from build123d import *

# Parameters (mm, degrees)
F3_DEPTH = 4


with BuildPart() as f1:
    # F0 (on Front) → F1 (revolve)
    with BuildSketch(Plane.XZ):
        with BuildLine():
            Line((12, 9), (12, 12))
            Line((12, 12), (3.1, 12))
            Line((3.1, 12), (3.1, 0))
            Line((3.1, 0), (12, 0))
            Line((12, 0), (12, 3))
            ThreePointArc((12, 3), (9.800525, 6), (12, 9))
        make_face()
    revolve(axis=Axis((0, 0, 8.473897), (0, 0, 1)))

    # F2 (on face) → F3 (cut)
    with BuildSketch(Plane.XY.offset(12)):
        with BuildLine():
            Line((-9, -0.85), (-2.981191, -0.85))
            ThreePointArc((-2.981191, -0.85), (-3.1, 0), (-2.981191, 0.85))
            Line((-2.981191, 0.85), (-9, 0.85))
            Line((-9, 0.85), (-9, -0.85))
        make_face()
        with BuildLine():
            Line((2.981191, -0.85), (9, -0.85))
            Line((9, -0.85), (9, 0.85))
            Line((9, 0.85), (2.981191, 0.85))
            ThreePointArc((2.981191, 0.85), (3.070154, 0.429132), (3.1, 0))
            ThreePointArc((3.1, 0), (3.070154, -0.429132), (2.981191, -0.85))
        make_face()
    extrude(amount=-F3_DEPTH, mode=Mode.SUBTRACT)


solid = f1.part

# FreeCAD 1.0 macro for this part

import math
import FreeCAD as App
import Part
import Sketcher
from FreeCAD import Vector

doc = App.newDocument("Part")
body = doc.addObject("PartDesign::Body", "Body")

# Sketch on XZ plane
sketch1 = body.newObject("Sketcher::SketchObject", "Sketch")
sketch1.AttachmentSupport = (doc.getObject("XZ_Plane"), [""])
sketch1.MapMode = "FlatFace"
sketch1.addGeometry([
    Part.LineSegment(Vector(12, 9, 0), Vector(12, 12, 0)),  # 0
    Part.LineSegment(Vector(12, 12, 0), Vector(3.1, 12, 0)),  # 1
    Part.LineSegment(Vector(3.1, 12, 0), Vector(3.1, 0, 0)),  # 2
    Part.LineSegment(Vector(3.1, 0, 0), Vector(12, 0, 0)),  # 3
    Part.LineSegment(Vector(12, 0, 0), Vector(12, 3, 0)),  # 4
    Part.ArcOfCircle(Part.Circle(Vector(12.946205, 6, 0), Vector(0, 0, 1), 3.14568), math.radians(107.505366), math.radians(252.494634)),  # 5
], False)
sketch1.addConstraint([
    Sketcher.Constraint("Coincident", 0, 2, 1, 1),
    Sketcher.Constraint("Coincident", 1, 2, 2, 1),
    Sketcher.Constraint("Coincident", 2, 2, 3, 1),
    Sketcher.Constraint("Coincident", 3, 2, 4, 1),
    Sketcher.Constraint("Coincident", 4, 2, 5, 2),
    Sketcher.Constraint("Coincident", 5, 1, 0, 1),
    Sketcher.Constraint("Vertical", 0),
    Sketcher.Constraint("Horizontal", 1),
    Sketcher.Constraint("Vertical", 2),
    Sketcher.Constraint("Horizontal", 3),
    Sketcher.Constraint("Vertical", 4),
    Sketcher.Constraint("PointOnObject", 2, 2, -1),
    Sketcher.Constraint("Vertical", 0, 2, 3, 2),
    Sketcher.Constraint("Equal", 0, 4),
    Sketcher.Constraint("DistanceY", 0, 1, 0, 2, 3.0),
    Sketcher.Constraint("DistanceY", 2, 2, 2, 1, 12.0),
    Sketcher.Constraint("DistanceX", 1, 2, 1, 1, 8.9),
    Sketcher.Constraint("DistanceX", -1, 1, 0, 2, 12.0),
    Sketcher.Constraint("Radius", 5, 3.14568),
])
revolution = body.newObject("PartDesign::Revolution", "Revolution")
revolution.Profile = sketch1
revolution.ReferenceAxis = (sketch1, ["V_Axis"])
revolution.Angle = 360

# Sketch on XY plane
sketch2 = body.newObject("Sketcher::SketchObject", "Sketch001")
sketch2.AttachmentSupport = (doc.getObject("XY_Plane"), [""])
sketch2.MapMode = "FlatFace"
sketch2.AttachmentOffset = App.Placement(Vector(0, 0, 12), App.Rotation())
sketch2.addGeometry([
    Part.LineSegment(Vector(-9, -0.85, 0), Vector(-2.981191, -0.85, 0)),  # 0
    Part.ArcOfCircle(Part.Circle(Vector(-0.000001, 0, 0), Vector(0, 0, 1), 3.099999), math.radians(164.086034), math.radians(195.913966)),  # 1
    Part.LineSegment(Vector(-2.981191, 0.85, 0), Vector(-9, 0.85, 0)),  # 2
    Part.LineSegment(Vector(-9, 0.85, 0), Vector(-9, -0.85, 0)),  # 3
    Part.LineSegment(Vector(2.981191, -0.85, 0), Vector(9, -0.85, 0)),  # 4
    Part.LineSegment(Vector(9, -0.85, 0), Vector(9, 0.85, 0)),  # 5
    Part.LineSegment(Vector(9, 0.85, 0), Vector(2.981191, 0.85, 0)),  # 6
    Part.ArcOfCircle(Part.Circle(Vector(-0.000001, 0, 0), Vector(0, 0, 1), 3.100001), math.radians(0.000004), math.radians(15.913962)),  # 7
    Part.ArcOfCircle(Part.Circle(Vector(-0.000001, 0, 0), Vector(0, 0, 1), 3.100001), math.radians(-15.913962), math.radians(-0.000004)),  # 8
], False)
sketch2.addConstraint([
    Sketcher.Constraint("Coincident", 0, 2, 1, 2),
    Sketcher.Constraint("Coincident", 1, 1, 2, 1),
    Sketcher.Constraint("Coincident", 2, 2, 3, 1),
    Sketcher.Constraint("Coincident", 3, 2, 0, 1),
    Sketcher.Constraint("Coincident", 4, 2, 5, 1),
    Sketcher.Constraint("Coincident", 5, 2, 6, 1),
    Sketcher.Constraint("Coincident", 6, 2, 7, 2),
    Sketcher.Constraint("Tangent", 7, 1, 8, 2),
    Sketcher.Constraint("Coincident", 8, 1, 4, 1),
    Sketcher.Constraint("Horizontal", 0),
    Sketcher.Constraint("Horizontal", 2),
    Sketcher.Constraint("Vertical", 3),
    Sketcher.Constraint("Horizontal", 4),
    Sketcher.Constraint("Vertical", 5),
    Sketcher.Constraint("Horizontal", 6),
    Sketcher.Constraint("Coincident", 1, 3, -1, 1),
    Sketcher.Constraint("Coincident", 7, 3, -1, 1),
    Sketcher.Constraint("Equal", 1, 7),
    Sketcher.Constraint("Equal", 7, 8),
    Sketcher.Constraint("Symmetric", 2, 2, 4, 2, -1, 1),
    Sketcher.Constraint("PointOnObject", 7, 1, -1),
    Sketcher.Constraint("Horizontal", 3, 2, 4, 2),
    Sketcher.Constraint("Horizontal", 2, 2, 5, 2),
    Sketcher.Constraint("Radius", 1, 3.099999),
    Sketcher.Constraint("DistanceY", 3, 2, 3, 1, 1.7),
    Sketcher.Constraint("DistanceX", 2, 2, -1, 1, 9.0),
])
pocket1 = body.newObject("PartDesign::Pocket", "Pocket")
pocket1.Profile = sketch2
pocket1.Length = 4

doc.recompute()
